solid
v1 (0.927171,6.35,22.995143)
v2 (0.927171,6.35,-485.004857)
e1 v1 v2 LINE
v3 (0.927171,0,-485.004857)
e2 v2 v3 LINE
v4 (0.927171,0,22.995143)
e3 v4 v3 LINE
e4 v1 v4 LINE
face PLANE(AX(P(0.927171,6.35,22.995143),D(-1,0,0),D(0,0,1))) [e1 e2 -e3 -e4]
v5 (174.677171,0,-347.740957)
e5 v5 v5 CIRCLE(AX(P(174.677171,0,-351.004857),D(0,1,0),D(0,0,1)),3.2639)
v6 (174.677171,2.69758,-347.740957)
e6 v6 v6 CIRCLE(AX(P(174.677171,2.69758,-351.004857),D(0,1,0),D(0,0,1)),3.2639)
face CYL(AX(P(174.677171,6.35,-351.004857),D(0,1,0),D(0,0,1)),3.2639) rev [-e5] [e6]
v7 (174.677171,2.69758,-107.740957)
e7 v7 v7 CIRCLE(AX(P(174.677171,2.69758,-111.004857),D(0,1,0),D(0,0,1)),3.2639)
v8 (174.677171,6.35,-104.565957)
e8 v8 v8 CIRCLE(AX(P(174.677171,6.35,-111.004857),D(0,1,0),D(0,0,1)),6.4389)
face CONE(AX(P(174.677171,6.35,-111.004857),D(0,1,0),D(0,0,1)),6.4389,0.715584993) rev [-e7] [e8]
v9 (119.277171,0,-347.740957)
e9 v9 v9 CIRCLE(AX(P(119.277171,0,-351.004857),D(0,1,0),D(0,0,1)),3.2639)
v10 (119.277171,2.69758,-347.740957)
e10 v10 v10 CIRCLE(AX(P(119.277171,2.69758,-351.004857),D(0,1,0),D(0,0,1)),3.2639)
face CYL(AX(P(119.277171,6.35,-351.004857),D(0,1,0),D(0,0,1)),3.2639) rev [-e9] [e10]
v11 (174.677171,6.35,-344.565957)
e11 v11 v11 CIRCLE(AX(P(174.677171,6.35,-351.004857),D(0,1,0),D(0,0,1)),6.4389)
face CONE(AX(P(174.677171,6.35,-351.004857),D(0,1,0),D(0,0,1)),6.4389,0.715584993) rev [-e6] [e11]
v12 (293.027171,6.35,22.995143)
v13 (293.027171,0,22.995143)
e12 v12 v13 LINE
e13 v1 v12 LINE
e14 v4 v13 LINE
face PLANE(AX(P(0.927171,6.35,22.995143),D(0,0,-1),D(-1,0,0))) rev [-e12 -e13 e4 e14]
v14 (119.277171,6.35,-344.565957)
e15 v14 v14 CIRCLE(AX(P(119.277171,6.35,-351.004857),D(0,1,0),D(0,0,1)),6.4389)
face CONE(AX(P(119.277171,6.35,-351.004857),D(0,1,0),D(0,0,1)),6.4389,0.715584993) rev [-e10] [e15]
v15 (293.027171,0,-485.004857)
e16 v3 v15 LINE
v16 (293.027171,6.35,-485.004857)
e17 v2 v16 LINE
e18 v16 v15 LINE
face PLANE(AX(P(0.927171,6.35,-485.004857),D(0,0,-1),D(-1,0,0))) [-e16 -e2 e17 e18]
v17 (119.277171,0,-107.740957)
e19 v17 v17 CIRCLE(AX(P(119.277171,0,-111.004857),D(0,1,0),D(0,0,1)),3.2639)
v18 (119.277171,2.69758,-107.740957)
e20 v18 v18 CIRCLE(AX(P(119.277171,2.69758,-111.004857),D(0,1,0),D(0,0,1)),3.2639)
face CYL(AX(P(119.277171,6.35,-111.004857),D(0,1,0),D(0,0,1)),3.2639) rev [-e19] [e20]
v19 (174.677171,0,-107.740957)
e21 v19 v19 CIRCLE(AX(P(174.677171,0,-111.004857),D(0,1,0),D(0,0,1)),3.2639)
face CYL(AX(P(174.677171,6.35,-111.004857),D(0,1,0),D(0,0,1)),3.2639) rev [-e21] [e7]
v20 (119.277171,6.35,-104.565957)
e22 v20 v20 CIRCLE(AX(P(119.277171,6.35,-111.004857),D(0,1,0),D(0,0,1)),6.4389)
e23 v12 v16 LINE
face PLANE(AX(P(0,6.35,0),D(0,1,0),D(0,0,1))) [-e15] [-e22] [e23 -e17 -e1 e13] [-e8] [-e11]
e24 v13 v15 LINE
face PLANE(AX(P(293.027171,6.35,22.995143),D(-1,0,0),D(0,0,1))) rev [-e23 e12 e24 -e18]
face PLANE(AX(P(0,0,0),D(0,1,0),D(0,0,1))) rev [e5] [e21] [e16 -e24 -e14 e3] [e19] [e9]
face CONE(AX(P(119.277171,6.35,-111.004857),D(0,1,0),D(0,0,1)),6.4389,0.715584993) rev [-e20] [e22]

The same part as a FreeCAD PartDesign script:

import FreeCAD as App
import Part
import Sketcher
Q = App.Units.Quantity

doc = App.newDocument("Part")
body = doc.addObject("PartDesign::Body", "Body")

# Sketch on XZ plane
sketch1 = body.newObject("Sketcher::SketchObject", "Sketch")
sketch1.AttachmentSupport = (doc.getObject("XZ_Plane"), [""])
sketch1.MapMode = "FlatFace"
sketch1.addGeometry(Part.LineSegment(App.Vector(1, -485, 0), App.Vector(1, 23, 0)), False)
sketch1.addGeometry(Part.LineSegment(App.Vector(1, 23, 0), App.Vector(293, 23, 0)), False)
sketch1.addGeometry(Part.LineSegment(App.Vector(293, 23, 0), App.Vector(293, -485, 0)), False)
sketch1.addGeometry(Part.LineSegment(App.Vector(293, -485, 0), App.Vector(1, -485, 0)), False)
sketch1.addConstraint(Sketcher.Constraint("Coincident", 0, 2, 1, 1))
sketch1.addConstraint(Sketcher.Constraint("Coincident", 1, 2, 2, 1))
sketch1.addConstraint(Sketcher.Constraint("Coincident", 2, 2, 3, 1))
sketch1.addConstraint(Sketcher.Constraint("Coincident", 3, 2, 0, 1))
sketch1.addConstraint(Sketcher.Constraint("Vertical", 0))
sketch1.addConstraint(Sketcher.Constraint("Horizontal", 1))
sketch1.addConstraint(Sketcher.Constraint("Vertical", 2))
sketch1.addConstraint(Sketcher.Constraint("Horizontal", 3))
sketch1.addConstraint(Sketcher.Constraint("DistanceY", 0, 1, 0, 2, Q("20 in")))
sketch1.addConstraint(Sketcher.Constraint("DistanceX", 1, 1, 1, 2, Q("11.5 in")))
sketch1.addConstraint(Sketcher.Constraint("DistanceX", -1, 1, 0, 2, 0.927171))
sketch1.addConstraint(Sketcher.Constraint("DistanceY", -1, 1, 0, 2, 22.995143))
pad1 = body.newObject("PartDesign::Pad", "Pad")
pad1.Profile = sketch1
pad1.Length = Q("0.25 in")
pad1.Reversed = True

# Sketch on YZ plane
sketch2 = body.newObject("Sketcher::SketchObject", "Sketch001")
sketch2.AttachmentSupport = (doc.getObject("YZ_Plane"), [""])
sketch2.MapMode = "FlatFace"
sketch2.AttachmentOffset = App.Placement(App.Vector(0, 0, 119.277171), App.Rotation())
sketch2.addGeometry(Part.LineSegment(App.Vector(0, -351, 0), App.Vector(6.3, -351, 0)), False)
sketch2.addGeometry(Part.LineSegment(App.Vector(6.3, -351, 0), App.Vector(6.3, -344.6, 0)), False)
sketch2.addGeometry(Part.LineSegment(App.Vector(6.3, -344.6, 0), App.Vector(2.7, -347.7, 0)), False)
sketch2.addGeometry(Part.LineSegment(App.Vector(2.7, -347.7, 0), App.Vector(0, -347.7, 0)), False)
sketch2.addGeometry(Part.LineSegment(App.Vector(0, -347.7, 0), App.Vector(0, -351, 0)), False)
sketch2.addGeometry(Part.LineSegment(App.Vector(6.3, -351, 0), App.Vector(0, -351, 0)), True)  # axis
sketch2.addConstraint(Sketcher.Constraint("Coincident", 0, 2, 1, 1))
sketch2.addConstraint(Sketcher.Constraint("Coincident", 1, 2, 2, 1))
sketch2.addConstraint(Sketcher.Constraint("Coincident", 2, 2, 3, 1))
sketch2.addConstraint(Sketcher.Constraint("Coincident", 3, 2, 4, 1))
sketch2.addConstraint(Sketcher.Constraint("Coincident", 4, 2, 0, 1))
sketch2.addConstraint(Sketcher.Constraint("Horizontal", 0))
sketch2.addConstraint(Sketcher.Constraint("Vertical", 1))
sketch2.addConstraint(Sketcher.Constraint("Horizontal", 3))
sketch2.addConstraint(Sketcher.Constraint("Vertical", 4))
sketch2.addConstraint(Sketcher.Constraint("Horizontal", 5))
sketch2.addConstraint(Sketcher.Constraint("Coincident", 5, 1, 0, 2))
sketch2.addConstraint(Sketcher.Constraint("PointOnObject", 3, 2, -2))
sketch2.addConstraint(Sketcher.Constraint("PointOnObject", 5, 2, -2))
sketch2.addConstraint(Sketcher.Constraint("Angle", 2, Q("-139 deg")))
sketch2.addConstraint(Sketcher.Constraint("DistanceX", 0, 1, 0, 2, Q("0.25 in")))
sketch2.addConstraint(Sketcher.Constraint("DistanceY", 1, 1, 1, 2, Q("0.2535 in")))
sketch2.addConstraint(Sketcher.Constraint("DistanceY", 4, 2, 4, 1, Q("0.1285 in")))
sketch2.addConstraint(Sketcher.Constraint("DistanceY", 0, 2, -1, 1, 351.004857))
groove = body.newObject("PartDesign::Groove", "Groove")
groove.Profile = sketch2
groove.ReferenceAxis = (sketch2, ["Axis0"])
groove.Angle = 360
doc.recompute()

linearpattern = body.newObject("PartDesign::LinearPattern", "LinearPattern")
linearpattern.Originals = [groove]
linearpattern.Direction = (doc.getObject("X_Axis"), [""])
linearpattern.Mode = "offset"
linearpattern.Offset = 55.4
linearpattern.Occurrences = 2
body.Tip = linearpattern
doc.recompute()

datumline = body.newObject("PartDesign::Line", "DatumLine")
datumline.Placement = App.Placement(App.Vector(0, 0, 0), App.Rotation(App.Vector(0, 0, 1), App.Vector(0.224918808, 0, 0.974377509)))
linearpattern2 = body.newObject("PartDesign::LinearPattern", "LinearPattern001")
linearpattern2.Originals = [groove]
linearpattern2.Direction = (datumline, [""])
linearpattern2.Mode = "offset"
linearpattern2.Offset = 246.311104
linearpattern2.Occurrences = 2
body.Tip = linearpattern2
doc.recompute()

linearpattern3 = body.newObject("PartDesign::LinearPattern", "LinearPattern002")
linearpattern3.Originals = [groove]
linearpattern3.Direction = (doc.getObject("Z_Axis"), [""])
linearpattern3.Mode = "offset"
linearpattern3.Offset = 240
linearpattern3.Occurrences = 2
body.Tip = linearpattern3

doc.recompute()
